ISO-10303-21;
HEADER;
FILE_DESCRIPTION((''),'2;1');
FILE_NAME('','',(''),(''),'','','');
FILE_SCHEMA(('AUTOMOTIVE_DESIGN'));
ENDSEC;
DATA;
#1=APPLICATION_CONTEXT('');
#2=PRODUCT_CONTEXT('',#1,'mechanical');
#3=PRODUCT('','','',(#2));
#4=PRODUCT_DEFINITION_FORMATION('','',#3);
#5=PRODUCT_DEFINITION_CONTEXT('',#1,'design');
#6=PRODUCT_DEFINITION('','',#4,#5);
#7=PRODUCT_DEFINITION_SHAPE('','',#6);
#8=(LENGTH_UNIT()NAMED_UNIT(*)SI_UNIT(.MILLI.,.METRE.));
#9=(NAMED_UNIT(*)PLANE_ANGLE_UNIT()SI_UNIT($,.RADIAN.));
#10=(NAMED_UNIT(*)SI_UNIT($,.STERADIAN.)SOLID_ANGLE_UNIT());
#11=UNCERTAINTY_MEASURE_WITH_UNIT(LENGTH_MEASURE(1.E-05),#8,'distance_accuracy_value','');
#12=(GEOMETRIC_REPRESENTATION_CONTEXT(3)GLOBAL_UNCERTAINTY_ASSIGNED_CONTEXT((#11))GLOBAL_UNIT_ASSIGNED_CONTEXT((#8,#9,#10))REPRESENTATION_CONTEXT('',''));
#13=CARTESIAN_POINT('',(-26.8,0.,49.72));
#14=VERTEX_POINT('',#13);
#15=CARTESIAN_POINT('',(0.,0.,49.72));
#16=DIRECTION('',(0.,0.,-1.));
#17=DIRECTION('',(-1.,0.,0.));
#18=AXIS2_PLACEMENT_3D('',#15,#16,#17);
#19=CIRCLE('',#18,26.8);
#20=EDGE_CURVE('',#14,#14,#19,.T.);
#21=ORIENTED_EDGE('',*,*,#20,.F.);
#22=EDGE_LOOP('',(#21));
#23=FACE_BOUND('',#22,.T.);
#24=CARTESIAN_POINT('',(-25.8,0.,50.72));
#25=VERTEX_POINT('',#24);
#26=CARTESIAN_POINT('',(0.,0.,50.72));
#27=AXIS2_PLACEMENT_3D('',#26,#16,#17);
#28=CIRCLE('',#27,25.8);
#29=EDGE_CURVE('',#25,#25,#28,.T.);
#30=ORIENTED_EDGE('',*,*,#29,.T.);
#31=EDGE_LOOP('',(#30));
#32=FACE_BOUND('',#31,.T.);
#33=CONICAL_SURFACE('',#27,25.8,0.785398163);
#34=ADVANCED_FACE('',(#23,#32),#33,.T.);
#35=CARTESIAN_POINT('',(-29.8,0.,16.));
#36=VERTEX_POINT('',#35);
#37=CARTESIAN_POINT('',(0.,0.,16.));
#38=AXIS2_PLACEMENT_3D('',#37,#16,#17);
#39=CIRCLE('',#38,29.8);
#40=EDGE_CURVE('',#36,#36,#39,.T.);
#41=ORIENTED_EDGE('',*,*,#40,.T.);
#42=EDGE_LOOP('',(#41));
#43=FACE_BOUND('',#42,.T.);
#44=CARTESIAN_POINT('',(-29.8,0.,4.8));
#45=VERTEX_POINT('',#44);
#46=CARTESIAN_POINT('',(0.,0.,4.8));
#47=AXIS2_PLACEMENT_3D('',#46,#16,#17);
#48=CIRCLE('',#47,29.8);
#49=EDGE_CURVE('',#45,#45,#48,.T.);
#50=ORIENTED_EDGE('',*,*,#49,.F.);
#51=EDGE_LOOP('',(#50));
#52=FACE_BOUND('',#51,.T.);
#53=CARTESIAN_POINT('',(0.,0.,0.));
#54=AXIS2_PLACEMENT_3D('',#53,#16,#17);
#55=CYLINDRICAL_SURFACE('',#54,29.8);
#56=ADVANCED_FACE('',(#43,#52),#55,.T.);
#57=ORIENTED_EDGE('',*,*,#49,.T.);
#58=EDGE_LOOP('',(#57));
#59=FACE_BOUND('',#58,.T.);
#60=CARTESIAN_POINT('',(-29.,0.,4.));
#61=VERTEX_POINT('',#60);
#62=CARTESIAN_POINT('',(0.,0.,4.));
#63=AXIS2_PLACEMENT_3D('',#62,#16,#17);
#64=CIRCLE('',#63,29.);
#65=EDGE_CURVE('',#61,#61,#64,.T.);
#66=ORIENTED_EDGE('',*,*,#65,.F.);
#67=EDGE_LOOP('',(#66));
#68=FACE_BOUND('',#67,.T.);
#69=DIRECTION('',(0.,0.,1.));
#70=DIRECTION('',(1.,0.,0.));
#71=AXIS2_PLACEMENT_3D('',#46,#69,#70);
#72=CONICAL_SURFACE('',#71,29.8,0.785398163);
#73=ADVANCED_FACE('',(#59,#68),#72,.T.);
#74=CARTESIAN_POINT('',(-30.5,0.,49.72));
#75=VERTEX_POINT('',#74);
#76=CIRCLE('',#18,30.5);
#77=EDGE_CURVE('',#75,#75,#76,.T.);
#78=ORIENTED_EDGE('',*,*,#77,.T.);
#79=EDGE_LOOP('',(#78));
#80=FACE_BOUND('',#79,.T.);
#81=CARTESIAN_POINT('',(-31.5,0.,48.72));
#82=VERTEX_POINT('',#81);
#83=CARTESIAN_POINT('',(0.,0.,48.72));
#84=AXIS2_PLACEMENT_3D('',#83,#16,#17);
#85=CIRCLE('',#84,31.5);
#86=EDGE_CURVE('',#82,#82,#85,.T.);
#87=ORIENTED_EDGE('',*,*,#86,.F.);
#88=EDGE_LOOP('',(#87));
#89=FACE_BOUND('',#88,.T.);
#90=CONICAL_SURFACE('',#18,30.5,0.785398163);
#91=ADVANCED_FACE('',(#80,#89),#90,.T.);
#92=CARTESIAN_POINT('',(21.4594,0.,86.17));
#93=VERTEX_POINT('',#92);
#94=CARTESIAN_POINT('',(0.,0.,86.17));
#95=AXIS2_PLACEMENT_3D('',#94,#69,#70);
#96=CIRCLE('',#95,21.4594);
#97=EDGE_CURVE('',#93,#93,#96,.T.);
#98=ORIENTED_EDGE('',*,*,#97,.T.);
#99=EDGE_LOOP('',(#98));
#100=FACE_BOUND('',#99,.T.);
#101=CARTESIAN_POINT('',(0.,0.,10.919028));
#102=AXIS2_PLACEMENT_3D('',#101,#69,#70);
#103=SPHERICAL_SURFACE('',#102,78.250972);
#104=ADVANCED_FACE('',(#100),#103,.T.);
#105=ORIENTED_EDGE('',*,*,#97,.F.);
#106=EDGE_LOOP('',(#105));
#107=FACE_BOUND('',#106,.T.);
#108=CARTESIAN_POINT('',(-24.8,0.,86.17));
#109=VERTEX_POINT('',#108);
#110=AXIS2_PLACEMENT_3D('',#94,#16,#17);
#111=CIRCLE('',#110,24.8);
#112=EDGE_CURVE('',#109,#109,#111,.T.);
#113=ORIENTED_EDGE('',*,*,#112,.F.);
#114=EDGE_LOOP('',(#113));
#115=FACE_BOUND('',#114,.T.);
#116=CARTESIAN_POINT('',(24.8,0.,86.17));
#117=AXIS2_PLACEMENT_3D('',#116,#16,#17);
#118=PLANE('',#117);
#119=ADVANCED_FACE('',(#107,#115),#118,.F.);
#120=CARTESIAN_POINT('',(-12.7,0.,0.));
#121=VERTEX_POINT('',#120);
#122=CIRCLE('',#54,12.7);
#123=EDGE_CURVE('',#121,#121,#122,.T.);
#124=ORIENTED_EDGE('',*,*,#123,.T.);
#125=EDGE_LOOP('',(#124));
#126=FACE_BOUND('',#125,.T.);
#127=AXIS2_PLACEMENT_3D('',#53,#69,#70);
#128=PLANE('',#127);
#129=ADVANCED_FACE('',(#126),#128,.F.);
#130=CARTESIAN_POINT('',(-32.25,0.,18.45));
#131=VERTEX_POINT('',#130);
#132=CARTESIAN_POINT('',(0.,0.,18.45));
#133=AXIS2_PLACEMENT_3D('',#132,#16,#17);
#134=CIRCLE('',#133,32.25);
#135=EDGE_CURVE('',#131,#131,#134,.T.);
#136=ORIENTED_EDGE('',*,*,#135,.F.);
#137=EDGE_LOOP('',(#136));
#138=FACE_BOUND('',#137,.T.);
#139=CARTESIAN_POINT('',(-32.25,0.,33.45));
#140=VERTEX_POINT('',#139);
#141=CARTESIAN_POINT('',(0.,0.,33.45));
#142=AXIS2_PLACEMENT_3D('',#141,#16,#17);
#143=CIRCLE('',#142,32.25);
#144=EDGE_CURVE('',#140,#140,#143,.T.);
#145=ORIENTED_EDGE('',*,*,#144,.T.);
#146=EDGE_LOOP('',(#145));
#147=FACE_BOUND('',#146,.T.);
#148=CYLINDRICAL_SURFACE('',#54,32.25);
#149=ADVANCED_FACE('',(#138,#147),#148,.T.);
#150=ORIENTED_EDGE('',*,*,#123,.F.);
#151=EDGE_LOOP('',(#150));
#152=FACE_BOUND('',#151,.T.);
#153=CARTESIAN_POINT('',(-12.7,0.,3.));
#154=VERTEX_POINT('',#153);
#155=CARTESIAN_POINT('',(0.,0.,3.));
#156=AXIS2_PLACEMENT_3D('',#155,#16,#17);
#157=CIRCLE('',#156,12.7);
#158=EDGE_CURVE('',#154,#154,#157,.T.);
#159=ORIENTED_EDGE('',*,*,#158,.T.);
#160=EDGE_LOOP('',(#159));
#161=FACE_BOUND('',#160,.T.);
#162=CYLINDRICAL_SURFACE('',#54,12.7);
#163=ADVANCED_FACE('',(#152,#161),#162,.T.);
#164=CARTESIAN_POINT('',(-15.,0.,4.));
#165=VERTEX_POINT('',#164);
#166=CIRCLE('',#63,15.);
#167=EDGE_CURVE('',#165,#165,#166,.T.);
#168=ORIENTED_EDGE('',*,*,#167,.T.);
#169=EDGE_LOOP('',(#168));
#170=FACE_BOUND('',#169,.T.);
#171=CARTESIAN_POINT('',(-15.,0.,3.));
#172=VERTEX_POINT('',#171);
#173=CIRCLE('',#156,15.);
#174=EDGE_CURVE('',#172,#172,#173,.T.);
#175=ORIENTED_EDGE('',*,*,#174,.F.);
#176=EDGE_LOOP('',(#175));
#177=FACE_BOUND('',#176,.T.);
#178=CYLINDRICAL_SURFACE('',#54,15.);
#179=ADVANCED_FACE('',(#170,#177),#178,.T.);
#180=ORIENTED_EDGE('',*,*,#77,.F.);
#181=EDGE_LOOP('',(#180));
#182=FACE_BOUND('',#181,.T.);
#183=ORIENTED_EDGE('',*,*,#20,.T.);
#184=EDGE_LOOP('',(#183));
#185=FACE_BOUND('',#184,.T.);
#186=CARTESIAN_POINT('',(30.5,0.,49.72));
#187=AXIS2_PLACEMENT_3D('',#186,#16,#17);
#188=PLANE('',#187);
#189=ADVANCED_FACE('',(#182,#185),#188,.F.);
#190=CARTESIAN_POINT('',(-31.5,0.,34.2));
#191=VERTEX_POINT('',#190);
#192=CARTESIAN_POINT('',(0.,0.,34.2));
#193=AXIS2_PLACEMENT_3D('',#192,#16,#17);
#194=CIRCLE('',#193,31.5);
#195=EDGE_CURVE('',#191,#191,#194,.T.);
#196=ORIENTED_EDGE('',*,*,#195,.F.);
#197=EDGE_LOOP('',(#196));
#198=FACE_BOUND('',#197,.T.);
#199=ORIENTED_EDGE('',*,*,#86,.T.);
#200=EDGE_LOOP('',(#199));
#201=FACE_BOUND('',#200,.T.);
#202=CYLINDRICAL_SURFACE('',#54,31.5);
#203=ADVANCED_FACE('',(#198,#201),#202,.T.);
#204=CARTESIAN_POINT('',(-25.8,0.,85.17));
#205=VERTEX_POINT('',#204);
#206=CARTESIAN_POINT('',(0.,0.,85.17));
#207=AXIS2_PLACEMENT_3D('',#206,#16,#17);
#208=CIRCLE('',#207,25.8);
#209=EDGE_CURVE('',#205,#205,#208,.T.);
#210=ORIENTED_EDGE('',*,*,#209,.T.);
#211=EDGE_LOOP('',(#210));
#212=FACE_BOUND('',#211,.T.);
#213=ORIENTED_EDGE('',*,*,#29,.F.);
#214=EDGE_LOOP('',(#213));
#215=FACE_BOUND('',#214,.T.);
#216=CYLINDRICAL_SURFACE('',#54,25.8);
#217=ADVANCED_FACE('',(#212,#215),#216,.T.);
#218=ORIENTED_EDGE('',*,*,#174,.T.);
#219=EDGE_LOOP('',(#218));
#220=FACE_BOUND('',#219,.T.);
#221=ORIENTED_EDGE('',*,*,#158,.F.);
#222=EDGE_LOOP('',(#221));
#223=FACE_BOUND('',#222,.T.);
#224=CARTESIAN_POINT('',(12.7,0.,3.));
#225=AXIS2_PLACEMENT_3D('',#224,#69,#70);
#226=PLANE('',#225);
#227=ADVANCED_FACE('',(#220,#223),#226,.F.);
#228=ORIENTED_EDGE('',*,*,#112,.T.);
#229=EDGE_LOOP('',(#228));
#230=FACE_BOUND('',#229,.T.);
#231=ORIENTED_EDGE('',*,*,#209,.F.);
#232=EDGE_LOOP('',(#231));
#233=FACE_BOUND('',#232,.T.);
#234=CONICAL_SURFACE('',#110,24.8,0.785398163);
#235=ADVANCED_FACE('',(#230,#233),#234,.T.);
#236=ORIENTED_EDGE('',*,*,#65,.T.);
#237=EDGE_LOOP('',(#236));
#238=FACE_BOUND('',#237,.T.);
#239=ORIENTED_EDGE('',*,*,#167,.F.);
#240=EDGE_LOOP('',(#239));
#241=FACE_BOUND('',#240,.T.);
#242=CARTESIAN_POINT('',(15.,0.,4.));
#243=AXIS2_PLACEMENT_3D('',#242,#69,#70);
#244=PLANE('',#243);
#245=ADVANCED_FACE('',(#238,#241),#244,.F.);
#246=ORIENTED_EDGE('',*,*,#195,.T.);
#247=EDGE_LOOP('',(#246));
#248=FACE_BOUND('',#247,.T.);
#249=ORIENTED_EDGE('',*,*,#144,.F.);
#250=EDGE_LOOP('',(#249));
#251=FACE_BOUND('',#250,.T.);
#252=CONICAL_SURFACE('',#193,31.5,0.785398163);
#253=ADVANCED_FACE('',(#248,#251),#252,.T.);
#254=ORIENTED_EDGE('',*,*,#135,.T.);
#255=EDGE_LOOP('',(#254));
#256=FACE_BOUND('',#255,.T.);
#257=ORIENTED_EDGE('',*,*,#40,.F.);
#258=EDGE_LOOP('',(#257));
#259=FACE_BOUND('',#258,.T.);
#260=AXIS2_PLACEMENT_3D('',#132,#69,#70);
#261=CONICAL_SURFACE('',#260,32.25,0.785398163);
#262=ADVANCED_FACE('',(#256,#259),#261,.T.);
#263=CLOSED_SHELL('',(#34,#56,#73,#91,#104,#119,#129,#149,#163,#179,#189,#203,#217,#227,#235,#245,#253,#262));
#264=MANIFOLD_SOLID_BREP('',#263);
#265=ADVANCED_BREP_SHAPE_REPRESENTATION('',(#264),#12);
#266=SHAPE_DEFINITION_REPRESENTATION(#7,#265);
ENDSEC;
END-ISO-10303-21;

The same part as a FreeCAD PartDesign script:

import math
import FreeCAD as App
import Part
import Sketcher
Q = App.Units.Quantity

doc = App.newDocument("Part")
body = doc.addObject("PartDesign::Body", "Body")

sketch1 = doc.addObject("Sketcher::SketchObject", "Sketch")
body.addObject(sketch1)
sketch1.AttachmentSupport = (doc.XZ_Plane, [""])
sketch1.MapMode = "FlatFace"
sketch1.addGeometry(Part.LineSegment(App.Vector(12.7, 0, 0), App.Vector(0, 0, 0)), False)
sketch1.addGeometry(Part.LineSegment(App.Vector(0, 0, 0), App.Vector(0, 86.17, 0)), False)
sketch1.addGeometry(Part.LineSegment(App.Vector(0, 86.17, 0), App.Vector(24.8, 86.17, 0)), False)
sketch1.addGeometry(Part.LineSegment(App.Vector(24.8, 86.17, 0), App.Vector(25.8, 85.17, 0)), False)
sketch1.addGeometry(Part.LineSegment(App.Vector(25.8, 85.17, 0), App.Vector(25.8, 50.72, 0)), False)
sketch1.addGeometry(Part.LineSegment(App.Vector(25.8, 50.72, 0), App.Vector(26.8, 49.72, 0)), False)
sketch1.addGeometry(Part.LineSegment(App.Vector(26.8, 49.72, 0), App.Vector(30.5, 49.72, 0)), False)
sketch1.addGeometry(Part.LineSegment(App.Vector(30.5, 49.72, 0), App.Vector(31.5, 48.72, 0)), False)
sketch1.addGeometry(Part.LineSegment(App.Vector(31.5, 48.72, 0), App.Vector(31.5, 34.2, 0)), False)
sketch1.addGeometry(Part.LineSegment(App.Vector(31.5, 34.2, 0), App.Vector(32.25, 33.45, 0)), False)
sketch1.addGeometry(Part.LineSegment(App.Vector(32.25, 33.45, 0), App.Vector(32.25, 18.45, 0)), False)
sketch1.addGeometry(Part.LineSegment(App.Vector(32.25, 18.45, 0), App.Vector(29.8, 16, 0)), False)
sketch1.addGeometry(Part.LineSegment(App.Vector(29.8, 16, 0), App.Vector(29.8, 4.8, 0)), False)
sketch1.addGeometry(Part.LineSegment(App.Vector(29.8, 4.8, 0), App.Vector(29, 4, 0)), False)
sketch1.addGeometry(Part.LineSegment(App.Vector(29, 4, 0), App.Vector(15, 4, 0)), False)
sketch1.addGeometry(Part.LineSegment(App.Vector(15, 4, 0), App.Vector(15, 3, 0)), False)
sketch1.addGeometry(Part.LineSegment(App.Vector(15, 3, 0), App.Vector(12.7, 3, 0)), False)
sketch1.addGeometry(Part.LineSegment(App.Vector(12.7, 3, 0), App.Vector(12.7, 0, 0)), False)
sketch1.addConstraint(Sketcher.Constraint("Coincident", 0, 2, 1, 1))
sketch1.addConstraint(Sketcher.Constraint("Coincident", 1, 2, 2, 1))
sketch1.addConstraint(Sketcher.Constraint("Coincident", 2, 2, 3, 1))
sketch1.addConstraint(Sketcher.Constraint("Coincident", 3, 2, 4, 1))
sketch1.addConstraint(Sketcher.Constraint("Coincident", 4, 2, 5, 1))
sketch1.addConstraint(Sketcher.Constraint("Coincident", 5, 2, 6, 1))
sketch1.addConstraint(Sketcher.Constraint("Coincident", 6, 2, 7, 1))
sketch1.addConstraint(Sketcher.Constraint("Coincident", 7, 2, 8, 1))
sketch1.addConstraint(Sketcher.Constraint("Coincident", 8, 2, 9, 1))
sketch1.addConstraint(Sketcher.Constraint("Coincident", 9, 2, 10, 1))
sketch1.addConstraint(Sketcher.Constraint("Coincident", 10, 2, 11, 1))
sketch1.addConstraint(Sketcher.Constraint("Coincident", 11, 2, 12, 1))
sketch1.addConstraint(Sketcher.Constraint("Coincident", 12, 2, 13, 1))
sketch1.addConstraint(Sketcher.Constraint("Coincident", 13, 2, 14, 1))
sketch1.addConstraint(Sketcher.Constraint("Coincident", 14, 2, 15, 1))
sketch1.addConstraint(Sketcher.Constraint("Coincident", 15, 2, 16, 1))
sketch1.addConstraint(Sketcher.Constraint("Coincident", 16, 2, 17, 1))
sketch1.addConstraint(Sketcher.Constraint("Coincident", 17, 2, 0, 1))
sketch1.addConstraint(Sketcher.Constraint("Horizontal", 0))
sketch1.addConstraint(Sketcher.Constraint("Vertical", 1))
sketch1.addConstraint(Sketcher.Constraint("Horizontal", 2))
sketch1.addConstraint(Sketcher.Constraint("Vertical", 4))
sketch1.addConstraint(Sketcher.Constraint("Horizontal", 6))
sketch1.addConstraint(Sketcher.Constraint("Vertical", 8))
sketch1.addConstraint(Sketcher.Constraint("Vertical", 10))
sketch1.addConstraint(Sketcher.Constraint("Vertical", 12))
sketch1.addConstraint(Sketcher.Constraint("Horizontal", 14))
sketch1.addConstraint(Sketcher.Constraint("Vertical", 15))
sketch1.addConstraint(Sketcher.Constraint("Horizontal", 16))
sketch1.addConstraint(Sketcher.Constraint("Vertical", 17))
sketch1.addConstraint(Sketcher.Constraint("Coincident", 0, 2, -1, 1))
sketch1.addConstraint(Sketcher.Constraint("Parallel", 3, 5))
sketch1.addConstraint(Sketcher.Constraint("Parallel", 5, 7))
sketch1.addConstraint(Sketcher.Constraint("Parallel", 7, 9))
sketch1.addConstraint(Sketcher.Constraint("Perpendicular", 9, 11))
sketch1.addConstraint(Sketcher.Constraint("Parallel", 11, 13))
sketch1.addConstraint(Sketcher.Constraint("Equal", 3, 5))
sketch1.addConstraint(Sketcher.Constraint("Equal", 5, 7))
sketch1.addConstraint(Sketcher.Constraint("DistanceX", 14, 2, 14, 1, 14.0))
sketch1.addConstraint(Sketcher.Constraint("DistanceY", 10, 2, 10, 1, 15.0))
sketch1.addConstraint(Sketcher.Constraint("DistanceY", 15, 2, 15, 1, 1.0))
sketch1.addConstraint(Sketcher.Constraint("DistanceY", 17, 2, 17, 1, 3.0))
sketch1.addConstraint(Sketcher.Constraint("Angle", 3, Q("-45 deg")))
sketch1.addConstraint(Sketcher.Constraint("DistanceX", 0, 2, 0, 1, 12.7))
sketch1.addConstraint(Sketcher.Constraint("DistanceX", 2, 1, 2, 2, 24.8))
sketch1.addConstraint(Sketcher.Constraint("DistanceX", 6, 1, 6, 2, 3.7))
sketch1.addConstraint(Sketcher.Constraint("DistanceX", 16, 2, 16, 1, 2.3))
sketch1.addConstraint(Sketcher.Constraint("DistanceY", 12, 2, 12, 1, 11.2))
sketch1.addConstraint(Sketcher.Constraint("DistanceY", -1, 1, 11, 2, 16.0))
sketch1.addConstraint(Sketcher.Constraint("DistanceX", 2, 2, 3, 2, 1.0))
sketch1.addConstraint(Sketcher.Constraint("DistanceY", 1, 1, 1, 2, 86.17))
sketch1.addConstraint(Sketcher.Constraint("DistanceY", 4, 2, 4, 1, 34.45))
sketch1.addConstraint(Sketcher.Constraint("DistanceY", 8, 2, 8, 1, 14.52))
revolution = doc.addObject("PartDesign::Revolution", "Revolution")
body.addObject(revolution)
revolution.Profile = sketch1
revolution.ReferenceAxis = (sketch1, ["V_Axis"])
revolution.Angle = 360

sketch2 = doc.addObject("Sketcher::SketchObject", "Sketch001")
body.addObject(sketch2)
sketch2.AttachmentSupport = (doc.XZ_Plane, [""])
sketch2.MapMode = "FlatFace"
sketch2.addGeometry(Part.LineSegment(App.Vector(0, 86.17, 0), App.Vector(0, 89.17, 0)), False)
sketch2.addGeometry(Part.ArcOfCircle(Part.Circle(App.Vector(0, 10.919028, 0), App.Vector(0, 0, 1), 78.250972), math.radians(74.083384), math.radians(90)), False)
sketch2.addGeometry(Part.LineSegment(App.Vector(21.4594, 86.17, 0), App.Vector(0, 86.17, 0)), False)
sketch2.addConstraint(Sketcher.Constraint("Coincident", 0, 2, 1, 2))
sketch2.addConstraint(Sketcher.Constraint("Coincident", 1, 1, 2, 1))
sketch2.addConstraint(Sketcher.Constraint("Coincident", 2, 2, 0, 1))
sketch2.addConstraint(Sketcher.Constraint("Vertical", 0))
sketch2.addConstraint(Sketcher.Constraint("Horizontal", 2))
sketch2.addConstraint(Sketcher.Constraint("PointOnObject", 1, 3, -2))
sketch2.addConstraint(Sketcher.Constraint("PointOnObject", 0, 2, -2))
sketch2.addConstraint(Sketcher.Constraint("DistanceY", 0, 1, 0, 2, 3.0))
sketch2.addConstraint(Sketcher.Constraint("DistanceY", -1, 1, 0, 2, 89.17))
sketch2.addConstraint(Sketcher.Constraint("Radius", 1, 78.250972))
revolution2 = doc.addObject("PartDesign::Revolution", "Revolution001")
body.addObject(revolution2)
revolution2.Profile = sketch2
revolution2.ReferenceAxis = (sketch2, ["V_Axis"])
revolution2.Angle = 360

doc.recompute()
